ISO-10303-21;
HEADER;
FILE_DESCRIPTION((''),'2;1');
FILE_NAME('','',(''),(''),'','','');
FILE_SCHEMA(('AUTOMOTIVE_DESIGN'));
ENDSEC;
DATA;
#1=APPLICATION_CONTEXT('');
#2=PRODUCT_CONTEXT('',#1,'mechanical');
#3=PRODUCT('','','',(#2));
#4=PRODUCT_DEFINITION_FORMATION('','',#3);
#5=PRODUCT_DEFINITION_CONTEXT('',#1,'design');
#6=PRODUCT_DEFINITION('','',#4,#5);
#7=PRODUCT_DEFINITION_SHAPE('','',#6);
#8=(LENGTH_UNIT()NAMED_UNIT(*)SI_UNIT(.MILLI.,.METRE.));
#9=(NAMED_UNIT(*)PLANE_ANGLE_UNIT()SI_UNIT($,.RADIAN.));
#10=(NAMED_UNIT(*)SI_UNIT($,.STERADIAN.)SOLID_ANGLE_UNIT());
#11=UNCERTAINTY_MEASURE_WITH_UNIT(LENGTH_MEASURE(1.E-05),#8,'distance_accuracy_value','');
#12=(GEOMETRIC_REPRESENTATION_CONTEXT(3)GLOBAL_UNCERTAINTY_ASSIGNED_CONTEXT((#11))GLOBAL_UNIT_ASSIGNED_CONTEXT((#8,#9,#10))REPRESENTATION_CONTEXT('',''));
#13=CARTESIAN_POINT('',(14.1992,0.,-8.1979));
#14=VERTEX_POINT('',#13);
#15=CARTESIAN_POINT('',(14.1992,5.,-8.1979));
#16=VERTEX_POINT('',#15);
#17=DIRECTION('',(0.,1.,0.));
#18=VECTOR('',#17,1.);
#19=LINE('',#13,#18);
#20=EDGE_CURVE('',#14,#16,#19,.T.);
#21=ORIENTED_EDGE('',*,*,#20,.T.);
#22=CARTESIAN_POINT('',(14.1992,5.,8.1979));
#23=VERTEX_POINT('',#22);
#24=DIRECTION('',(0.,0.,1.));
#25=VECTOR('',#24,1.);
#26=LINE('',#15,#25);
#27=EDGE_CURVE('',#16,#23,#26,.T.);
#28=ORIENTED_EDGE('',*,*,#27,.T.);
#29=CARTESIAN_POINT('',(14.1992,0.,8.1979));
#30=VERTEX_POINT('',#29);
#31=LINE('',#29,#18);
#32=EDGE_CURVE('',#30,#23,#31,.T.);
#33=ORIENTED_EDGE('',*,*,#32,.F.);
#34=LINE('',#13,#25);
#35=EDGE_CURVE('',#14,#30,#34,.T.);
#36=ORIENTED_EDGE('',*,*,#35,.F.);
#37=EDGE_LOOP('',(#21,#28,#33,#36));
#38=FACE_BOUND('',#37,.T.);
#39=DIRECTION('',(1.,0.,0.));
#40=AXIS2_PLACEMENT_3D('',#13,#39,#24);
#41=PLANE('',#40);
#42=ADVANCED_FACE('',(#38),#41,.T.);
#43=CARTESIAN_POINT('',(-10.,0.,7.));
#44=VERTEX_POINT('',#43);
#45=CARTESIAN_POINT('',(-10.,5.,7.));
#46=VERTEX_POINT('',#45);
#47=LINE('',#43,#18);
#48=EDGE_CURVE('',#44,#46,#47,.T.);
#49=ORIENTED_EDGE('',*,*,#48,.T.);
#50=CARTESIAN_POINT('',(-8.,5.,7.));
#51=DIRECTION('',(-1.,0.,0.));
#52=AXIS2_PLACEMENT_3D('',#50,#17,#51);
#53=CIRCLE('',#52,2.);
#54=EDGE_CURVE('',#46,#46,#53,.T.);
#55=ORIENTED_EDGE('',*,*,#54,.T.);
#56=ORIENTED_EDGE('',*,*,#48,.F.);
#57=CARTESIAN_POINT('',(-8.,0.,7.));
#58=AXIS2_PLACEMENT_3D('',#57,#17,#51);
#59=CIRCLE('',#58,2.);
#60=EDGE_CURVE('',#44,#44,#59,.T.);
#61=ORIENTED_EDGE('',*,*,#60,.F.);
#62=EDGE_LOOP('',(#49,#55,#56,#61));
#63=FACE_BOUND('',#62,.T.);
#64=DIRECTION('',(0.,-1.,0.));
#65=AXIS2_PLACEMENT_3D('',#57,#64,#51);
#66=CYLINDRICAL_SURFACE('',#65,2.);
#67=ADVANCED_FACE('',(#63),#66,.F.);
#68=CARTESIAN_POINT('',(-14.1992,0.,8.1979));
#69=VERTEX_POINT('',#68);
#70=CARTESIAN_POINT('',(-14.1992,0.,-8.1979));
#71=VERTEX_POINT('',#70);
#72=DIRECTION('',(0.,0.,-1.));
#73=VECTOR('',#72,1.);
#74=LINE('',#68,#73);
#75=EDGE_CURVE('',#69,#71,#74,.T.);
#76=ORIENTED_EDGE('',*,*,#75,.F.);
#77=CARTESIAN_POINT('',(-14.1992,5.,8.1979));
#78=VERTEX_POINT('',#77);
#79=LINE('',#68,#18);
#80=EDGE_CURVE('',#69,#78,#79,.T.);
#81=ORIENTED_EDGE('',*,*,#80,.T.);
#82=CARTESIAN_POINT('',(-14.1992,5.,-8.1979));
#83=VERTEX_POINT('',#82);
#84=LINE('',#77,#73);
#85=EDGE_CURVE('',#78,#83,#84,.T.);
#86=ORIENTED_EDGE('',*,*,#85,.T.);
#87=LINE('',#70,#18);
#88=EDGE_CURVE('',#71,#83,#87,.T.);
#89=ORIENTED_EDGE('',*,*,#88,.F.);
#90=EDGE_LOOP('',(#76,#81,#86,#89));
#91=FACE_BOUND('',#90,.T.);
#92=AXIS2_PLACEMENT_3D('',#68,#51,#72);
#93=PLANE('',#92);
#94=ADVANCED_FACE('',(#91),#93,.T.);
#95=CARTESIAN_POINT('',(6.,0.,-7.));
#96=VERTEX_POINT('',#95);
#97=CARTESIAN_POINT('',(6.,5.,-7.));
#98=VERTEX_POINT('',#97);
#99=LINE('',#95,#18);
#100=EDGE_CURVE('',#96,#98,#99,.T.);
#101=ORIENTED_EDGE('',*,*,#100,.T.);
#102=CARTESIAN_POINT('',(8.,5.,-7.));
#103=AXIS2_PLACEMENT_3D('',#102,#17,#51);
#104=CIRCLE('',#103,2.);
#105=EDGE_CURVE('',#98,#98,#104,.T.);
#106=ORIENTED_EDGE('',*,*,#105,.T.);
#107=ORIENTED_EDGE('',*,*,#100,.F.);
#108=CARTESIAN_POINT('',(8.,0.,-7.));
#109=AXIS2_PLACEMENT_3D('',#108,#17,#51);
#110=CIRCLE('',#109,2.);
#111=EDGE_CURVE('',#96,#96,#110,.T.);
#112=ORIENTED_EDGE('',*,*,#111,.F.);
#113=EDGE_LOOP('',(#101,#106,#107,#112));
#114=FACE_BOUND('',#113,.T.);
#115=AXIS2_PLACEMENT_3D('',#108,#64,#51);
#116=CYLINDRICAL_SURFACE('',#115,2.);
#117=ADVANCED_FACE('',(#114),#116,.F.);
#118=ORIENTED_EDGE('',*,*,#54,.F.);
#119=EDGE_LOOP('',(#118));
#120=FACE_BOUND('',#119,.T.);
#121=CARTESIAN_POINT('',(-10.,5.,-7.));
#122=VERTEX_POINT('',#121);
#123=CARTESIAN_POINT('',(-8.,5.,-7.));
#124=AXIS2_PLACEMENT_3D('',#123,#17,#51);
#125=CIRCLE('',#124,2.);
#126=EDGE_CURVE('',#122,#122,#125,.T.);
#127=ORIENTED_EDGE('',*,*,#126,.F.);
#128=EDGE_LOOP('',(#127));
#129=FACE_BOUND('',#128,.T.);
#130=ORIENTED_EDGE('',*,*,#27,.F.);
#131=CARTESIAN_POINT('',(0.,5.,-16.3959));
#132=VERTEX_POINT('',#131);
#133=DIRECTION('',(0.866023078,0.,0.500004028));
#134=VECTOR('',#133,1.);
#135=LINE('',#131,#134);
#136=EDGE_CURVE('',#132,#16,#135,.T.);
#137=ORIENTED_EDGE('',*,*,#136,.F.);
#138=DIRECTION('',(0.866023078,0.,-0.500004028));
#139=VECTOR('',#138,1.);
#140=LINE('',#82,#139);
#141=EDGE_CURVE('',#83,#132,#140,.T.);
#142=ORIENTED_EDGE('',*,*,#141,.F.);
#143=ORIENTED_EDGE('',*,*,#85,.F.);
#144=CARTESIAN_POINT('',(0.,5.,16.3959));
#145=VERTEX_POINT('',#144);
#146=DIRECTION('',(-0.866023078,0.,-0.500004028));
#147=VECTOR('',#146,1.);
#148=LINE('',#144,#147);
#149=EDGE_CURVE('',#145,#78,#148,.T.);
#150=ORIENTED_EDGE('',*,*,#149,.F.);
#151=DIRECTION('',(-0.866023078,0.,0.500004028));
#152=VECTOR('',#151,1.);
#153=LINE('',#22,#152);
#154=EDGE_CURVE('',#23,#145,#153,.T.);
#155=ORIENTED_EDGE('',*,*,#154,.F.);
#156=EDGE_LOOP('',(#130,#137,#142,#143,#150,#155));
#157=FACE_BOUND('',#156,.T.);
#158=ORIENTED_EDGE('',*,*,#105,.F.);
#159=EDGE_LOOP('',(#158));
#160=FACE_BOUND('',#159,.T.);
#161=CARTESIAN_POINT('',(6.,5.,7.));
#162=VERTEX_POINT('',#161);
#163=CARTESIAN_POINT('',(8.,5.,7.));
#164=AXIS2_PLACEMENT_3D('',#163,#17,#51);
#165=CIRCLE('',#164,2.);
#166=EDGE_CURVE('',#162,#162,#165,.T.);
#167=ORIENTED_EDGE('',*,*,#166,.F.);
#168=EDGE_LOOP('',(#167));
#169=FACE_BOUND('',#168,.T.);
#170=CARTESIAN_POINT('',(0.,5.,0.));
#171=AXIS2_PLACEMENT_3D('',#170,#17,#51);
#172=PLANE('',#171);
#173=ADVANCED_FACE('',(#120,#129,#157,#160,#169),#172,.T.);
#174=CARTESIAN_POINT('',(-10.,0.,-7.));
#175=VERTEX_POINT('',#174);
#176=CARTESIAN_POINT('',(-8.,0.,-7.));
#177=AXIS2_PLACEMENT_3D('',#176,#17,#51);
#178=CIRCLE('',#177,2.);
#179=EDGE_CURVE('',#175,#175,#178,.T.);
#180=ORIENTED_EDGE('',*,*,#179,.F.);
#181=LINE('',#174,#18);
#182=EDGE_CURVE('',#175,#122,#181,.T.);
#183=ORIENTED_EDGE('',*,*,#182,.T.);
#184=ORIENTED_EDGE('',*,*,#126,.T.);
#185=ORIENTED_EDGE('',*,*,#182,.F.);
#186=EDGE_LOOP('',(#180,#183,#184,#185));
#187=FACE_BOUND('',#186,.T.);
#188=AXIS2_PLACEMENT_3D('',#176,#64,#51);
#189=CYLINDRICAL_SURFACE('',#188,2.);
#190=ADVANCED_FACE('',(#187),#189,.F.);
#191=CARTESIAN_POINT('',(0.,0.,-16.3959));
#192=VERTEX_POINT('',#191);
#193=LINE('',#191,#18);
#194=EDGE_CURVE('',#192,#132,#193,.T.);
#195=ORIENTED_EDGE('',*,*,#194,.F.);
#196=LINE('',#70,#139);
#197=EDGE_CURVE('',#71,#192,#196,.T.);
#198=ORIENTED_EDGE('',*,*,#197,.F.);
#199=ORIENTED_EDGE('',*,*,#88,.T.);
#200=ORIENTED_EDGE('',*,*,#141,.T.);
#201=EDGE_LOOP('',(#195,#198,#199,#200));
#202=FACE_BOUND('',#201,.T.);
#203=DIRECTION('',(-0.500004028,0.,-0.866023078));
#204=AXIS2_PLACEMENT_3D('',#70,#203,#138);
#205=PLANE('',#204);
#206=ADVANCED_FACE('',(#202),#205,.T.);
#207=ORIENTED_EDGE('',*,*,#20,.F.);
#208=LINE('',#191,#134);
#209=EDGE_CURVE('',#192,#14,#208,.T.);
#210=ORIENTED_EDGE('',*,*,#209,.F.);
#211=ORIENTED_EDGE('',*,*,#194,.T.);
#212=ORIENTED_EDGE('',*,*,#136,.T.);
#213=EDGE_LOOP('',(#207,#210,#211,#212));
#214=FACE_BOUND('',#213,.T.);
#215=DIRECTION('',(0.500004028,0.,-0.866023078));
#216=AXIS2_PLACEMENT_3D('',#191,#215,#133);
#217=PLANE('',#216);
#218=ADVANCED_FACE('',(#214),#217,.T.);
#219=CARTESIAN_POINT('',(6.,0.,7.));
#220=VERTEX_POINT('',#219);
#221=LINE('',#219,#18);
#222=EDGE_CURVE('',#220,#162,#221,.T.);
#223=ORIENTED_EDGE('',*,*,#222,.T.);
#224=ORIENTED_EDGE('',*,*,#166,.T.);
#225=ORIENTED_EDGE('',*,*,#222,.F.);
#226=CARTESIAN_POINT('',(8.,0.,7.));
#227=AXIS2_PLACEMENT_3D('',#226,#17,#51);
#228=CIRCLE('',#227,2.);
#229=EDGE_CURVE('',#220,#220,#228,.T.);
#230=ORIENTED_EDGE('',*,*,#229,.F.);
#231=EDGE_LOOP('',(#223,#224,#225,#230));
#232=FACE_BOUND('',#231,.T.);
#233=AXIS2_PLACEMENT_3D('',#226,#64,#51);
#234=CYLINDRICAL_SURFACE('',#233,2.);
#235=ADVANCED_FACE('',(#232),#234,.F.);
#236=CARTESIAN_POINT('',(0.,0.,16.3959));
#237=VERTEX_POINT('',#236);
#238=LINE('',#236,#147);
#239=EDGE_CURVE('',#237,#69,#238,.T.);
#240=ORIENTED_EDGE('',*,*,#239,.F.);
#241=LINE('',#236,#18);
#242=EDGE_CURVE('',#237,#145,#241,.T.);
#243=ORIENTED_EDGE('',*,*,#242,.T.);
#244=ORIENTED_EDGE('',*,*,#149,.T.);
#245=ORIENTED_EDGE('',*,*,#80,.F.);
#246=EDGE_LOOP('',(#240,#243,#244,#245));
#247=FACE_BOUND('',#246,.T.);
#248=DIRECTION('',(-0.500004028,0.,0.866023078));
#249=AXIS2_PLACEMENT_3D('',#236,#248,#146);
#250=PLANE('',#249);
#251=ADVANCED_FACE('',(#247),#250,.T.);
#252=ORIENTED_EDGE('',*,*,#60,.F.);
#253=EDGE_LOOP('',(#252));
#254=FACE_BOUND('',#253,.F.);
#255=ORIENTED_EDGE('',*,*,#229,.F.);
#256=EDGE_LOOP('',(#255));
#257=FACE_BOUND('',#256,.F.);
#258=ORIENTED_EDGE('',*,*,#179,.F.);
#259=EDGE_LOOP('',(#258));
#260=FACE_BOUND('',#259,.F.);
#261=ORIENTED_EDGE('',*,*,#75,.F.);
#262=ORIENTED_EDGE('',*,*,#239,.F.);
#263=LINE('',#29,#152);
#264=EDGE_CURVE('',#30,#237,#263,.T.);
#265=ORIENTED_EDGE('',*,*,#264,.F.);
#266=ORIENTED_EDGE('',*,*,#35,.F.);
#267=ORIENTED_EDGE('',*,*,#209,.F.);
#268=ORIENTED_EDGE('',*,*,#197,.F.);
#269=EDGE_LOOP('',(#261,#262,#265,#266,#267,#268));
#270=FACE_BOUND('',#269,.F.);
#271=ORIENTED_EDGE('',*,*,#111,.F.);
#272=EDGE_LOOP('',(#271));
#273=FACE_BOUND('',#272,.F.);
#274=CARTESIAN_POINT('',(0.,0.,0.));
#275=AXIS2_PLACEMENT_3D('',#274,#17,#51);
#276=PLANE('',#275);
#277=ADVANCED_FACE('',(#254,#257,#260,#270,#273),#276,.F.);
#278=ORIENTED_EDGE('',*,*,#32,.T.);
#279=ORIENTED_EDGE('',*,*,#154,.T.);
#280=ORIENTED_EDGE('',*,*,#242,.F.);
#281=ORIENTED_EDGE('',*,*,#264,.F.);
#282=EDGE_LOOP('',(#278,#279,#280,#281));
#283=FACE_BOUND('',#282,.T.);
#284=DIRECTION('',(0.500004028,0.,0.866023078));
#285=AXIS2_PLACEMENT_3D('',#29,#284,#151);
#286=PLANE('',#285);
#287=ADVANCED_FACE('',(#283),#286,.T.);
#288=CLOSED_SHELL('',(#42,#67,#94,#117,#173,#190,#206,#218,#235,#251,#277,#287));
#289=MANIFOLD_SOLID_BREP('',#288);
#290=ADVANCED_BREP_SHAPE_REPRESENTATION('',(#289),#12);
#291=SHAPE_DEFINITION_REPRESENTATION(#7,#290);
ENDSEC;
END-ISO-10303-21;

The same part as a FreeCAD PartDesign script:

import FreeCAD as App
import Part
import Sketcher
Q = App.Units.Quantity


def add_polygon(sketch, points):
    """Adds a closed chain of lines whose ends are joined by coincident constraints."""
    first, n = sketch.GeometryCount, len(points)
    for a, b in zip(points, points[1:] + points[:1]):
        sketch.addGeometry(Part.LineSegment(App.Vector(*a, 0), App.Vector(*b, 0)), False)
    for i in range(n):
        sketch.addConstraint(Sketcher.Constraint("Coincident", first + i, 2, first + (i + 1) % n, 1))

doc = App.newDocument("Part")
params = doc.addObject("Spreadsheet::Sheet", "Params")
for row, (alias, value) in enumerate([
    ("sketch1_diameter", "4 mm"),
    ("pad1_length", "5 mm"),
], start=1):
    params.set(f"A{row}", alias)
    params.set(f"B{row}", "=" + value)
    params.setAlias(f"B{row}", alias)

body = doc.addObject("PartDesign::Body", "Body")

# Sketch on XZ plane
sketch1 = body.newObject("Sketcher::SketchObject", "Sketch")
sketch1.AttachmentSupport = (doc.getObject("XZ_Plane"), [""])
sketch1.MapMode = "FlatFace"
add_polygon(sketch1, [(-14.1992, 8.1979), (0, 16.3959), (14.1992, 8.1979), (14.1992, -8.1979), (0, -16.3959), (-14.1992, -8.1979)])  # lines 0-5
sketch1.addGeometry(Part.Circle(App.Vector(8, -7, 0), App.Vector(0, 0, 1), 2), False)  # 6
sketch1.addGeometry(Part.Circle(App.Vector(-8, -7, 0), App.Vector(0, 0, 1), 2), False)  # 7
sketch1.addGeometry(Part.Circle(App.Vector(8, 7, 0), App.Vector(0, 0, 1), 2), False)  # 8
sketch1.addGeometry(Part.Circle(App.Vector(-8, 7, 0), App.Vector(0, 0, 1), 2), False)  # 9
sketch1.addConstraint(Sketcher.Constraint("Vertical", 2))
sketch1.addConstraint(Sketcher.Constraint("Vertical", 5))
sketch1.addConstraint(Sketcher.Constraint("Equal", 6, 7))
sketch1.addConstraint(Sketcher.Constraint("Equal", 7, 8))
sketch1.addConstraint(Sketcher.Constraint("Equal", 8, 9))
sketch1.addConstraint(Sketcher.Constraint("Symmetric", 7, 3, 8, 3, -1, 1))
sketch1.addConstraint(Sketcher.Constraint("Symmetric", 6, 3, 9, 3, -1, 1))
sketch1.addConstraint(Sketcher.Constraint("Symmetric", 0, 2, 3, 2, -1, 1))
sketch1.addConstraint(Sketcher.Constraint("Symmetric", 1, 2, 4, 2, -1, 1))
sketch1.addConstraint(Sketcher.Constraint("Symmetric", 6, 3, 7, 3, -2))
sketch1.addConstraint(Sketcher.Constraint("PointOnObject", 0, 2, -2))
sketch1.addConstraint(Sketcher.Constraint("Parallel", 0, 3))
sketch1.addConstraint(Sketcher.Constraint("Horizontal", 2, 2, 4, 2))
sketch1.addConstraint(Sketcher.Constraint("Diameter", 6, Q("4 mm")))
sketch1.addConstraint(Sketcher.Constraint("DistanceX", -1, 1, 6, 3, Q("8 mm")))
sketch1.addConstraint(Sketcher.Constraint("DistanceY", 6, 3, -1, 1, Q("7 mm")))
sketch1.addConstraint(Sketcher.Constraint("Angle", 0, Q("30.0003 deg")))
sketch1.addConstraint(Sketcher.Constraint("DistanceY", 2, 2, 2, 1, Q("16.3958 mm")))
sketch1.addConstraint(Sketcher.Constraint("DistanceY", -1, 1, 0, 2, Q("16.396 mm")))
sketch1.setExpression("Constraints[19]", "Params.sketch1_diameter")
pad1 = body.newObject("PartDesign::Pad", "Pad")
pad1.Profile = sketch1
pad1.setExpression("Length", "Params.pad1_length")
pad1.Reversed = True

doc.recompute()
